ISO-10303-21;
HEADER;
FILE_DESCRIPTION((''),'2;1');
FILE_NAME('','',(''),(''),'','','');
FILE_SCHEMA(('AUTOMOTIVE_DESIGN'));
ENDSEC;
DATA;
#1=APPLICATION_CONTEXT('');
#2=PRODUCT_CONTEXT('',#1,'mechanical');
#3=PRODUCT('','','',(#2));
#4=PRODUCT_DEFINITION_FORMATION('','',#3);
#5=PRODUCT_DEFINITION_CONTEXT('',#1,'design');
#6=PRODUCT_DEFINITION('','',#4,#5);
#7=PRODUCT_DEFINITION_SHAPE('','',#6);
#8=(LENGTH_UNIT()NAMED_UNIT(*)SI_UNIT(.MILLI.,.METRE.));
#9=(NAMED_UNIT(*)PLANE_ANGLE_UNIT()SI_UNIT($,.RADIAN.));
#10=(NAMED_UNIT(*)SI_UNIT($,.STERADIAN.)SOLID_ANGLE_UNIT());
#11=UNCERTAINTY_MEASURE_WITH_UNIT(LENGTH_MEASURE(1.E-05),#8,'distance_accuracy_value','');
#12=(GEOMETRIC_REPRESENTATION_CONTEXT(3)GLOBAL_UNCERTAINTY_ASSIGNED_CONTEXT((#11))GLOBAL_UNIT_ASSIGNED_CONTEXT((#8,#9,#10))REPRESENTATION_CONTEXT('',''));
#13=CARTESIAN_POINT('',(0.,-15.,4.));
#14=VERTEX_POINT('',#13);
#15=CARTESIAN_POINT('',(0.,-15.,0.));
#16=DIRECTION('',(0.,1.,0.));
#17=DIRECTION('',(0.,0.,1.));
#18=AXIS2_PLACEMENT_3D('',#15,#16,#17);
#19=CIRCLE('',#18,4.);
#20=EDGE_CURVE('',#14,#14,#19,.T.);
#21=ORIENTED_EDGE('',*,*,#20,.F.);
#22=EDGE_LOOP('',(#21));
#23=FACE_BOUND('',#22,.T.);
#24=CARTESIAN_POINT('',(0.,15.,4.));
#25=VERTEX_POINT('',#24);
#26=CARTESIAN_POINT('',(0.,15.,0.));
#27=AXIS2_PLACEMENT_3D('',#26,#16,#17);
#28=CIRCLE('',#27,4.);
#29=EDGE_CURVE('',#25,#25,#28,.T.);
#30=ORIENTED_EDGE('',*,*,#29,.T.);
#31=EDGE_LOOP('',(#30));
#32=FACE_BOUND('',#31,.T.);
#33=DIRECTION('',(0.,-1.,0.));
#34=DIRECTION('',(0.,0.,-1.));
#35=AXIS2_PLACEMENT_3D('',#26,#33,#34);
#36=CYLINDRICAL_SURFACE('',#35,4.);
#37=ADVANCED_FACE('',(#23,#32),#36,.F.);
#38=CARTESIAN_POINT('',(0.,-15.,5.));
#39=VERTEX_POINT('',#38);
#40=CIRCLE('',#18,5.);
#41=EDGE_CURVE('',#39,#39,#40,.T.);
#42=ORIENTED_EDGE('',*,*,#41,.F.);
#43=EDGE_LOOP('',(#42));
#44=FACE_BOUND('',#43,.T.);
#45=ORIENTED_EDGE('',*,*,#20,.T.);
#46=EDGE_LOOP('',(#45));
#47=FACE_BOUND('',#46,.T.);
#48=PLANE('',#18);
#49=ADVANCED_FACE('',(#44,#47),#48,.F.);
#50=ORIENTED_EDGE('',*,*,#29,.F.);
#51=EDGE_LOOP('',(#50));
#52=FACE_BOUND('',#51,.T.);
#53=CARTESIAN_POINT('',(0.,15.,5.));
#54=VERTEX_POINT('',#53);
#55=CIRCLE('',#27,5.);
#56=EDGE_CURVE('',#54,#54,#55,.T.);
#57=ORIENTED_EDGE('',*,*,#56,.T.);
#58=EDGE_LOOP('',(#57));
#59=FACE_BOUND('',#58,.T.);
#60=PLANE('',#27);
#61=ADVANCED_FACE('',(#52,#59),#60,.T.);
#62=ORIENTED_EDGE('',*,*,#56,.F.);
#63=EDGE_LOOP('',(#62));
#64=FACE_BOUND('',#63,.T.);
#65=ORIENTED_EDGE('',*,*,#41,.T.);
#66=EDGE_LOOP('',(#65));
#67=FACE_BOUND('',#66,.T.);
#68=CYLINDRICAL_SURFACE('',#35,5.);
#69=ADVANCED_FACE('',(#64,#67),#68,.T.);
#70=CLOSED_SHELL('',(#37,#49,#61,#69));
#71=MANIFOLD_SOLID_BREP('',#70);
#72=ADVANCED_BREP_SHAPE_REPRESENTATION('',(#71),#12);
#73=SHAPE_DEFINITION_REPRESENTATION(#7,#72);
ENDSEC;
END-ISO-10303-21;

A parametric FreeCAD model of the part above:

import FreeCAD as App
import Part
import Sketcher
from FreeCAD import Vector
Q = App.Units.Quantity

doc = App.newDocument("Part")
body = doc.addObject("PartDesign::Body", "Body")

# Sketch on XZ plane
sketch1 = doc.addObject("Sketcher::SketchObject", "Sketch")
body.addObject(sketch1)
sketch1.AttachmentSupport = (doc.XZ_Plane, [""])
sketch1.MapMode = "FlatFace"
sketch1.addGeometry(Part.Circle(Vector(0, 0, 0), Vector(0, 0, 1), 5), False)
sketch1.addConstraint([
    Sketcher.Constraint("Coincident", 0, 3, -1, 1),
    Sketcher.Constraint("Diameter", 0, Q("10 mm")),
])
pad1 = doc.addObject("PartDesign::Pad", "Pad")
body.addObject(pad1)
pad1.Profile = sketch1
pad1.Length = 30
pad1.Midplane = True

# Sketch on XZ plane
sketch2 = doc.addObject("Sketcher::SketchObject", "Sketch001")
body.addObject(sketch2)
sketch2.AttachmentSupport = (doc.XZ_Plane, [""])
sketch2.MapMode = "FlatFace"
sketch2.addGeometry(Part.Circle(Vector(0, 0, 0), Vector(0, 0, 1), 4), False)
sketch2.addConstraint([
    Sketcher.Constraint("Coincident", 0, 3, -1, 1),
    Sketcher.Constraint("Diameter", 0, Q("8 mm")),
])
pocket1 = doc.addObject("PartDesign::Pocket", "Pocket")
body.addObject(pocket1)
pocket1.Profile = sketch2
pocket1.Type = "ThroughAll"
pocket1.Midplane = True

doc.recompute()
